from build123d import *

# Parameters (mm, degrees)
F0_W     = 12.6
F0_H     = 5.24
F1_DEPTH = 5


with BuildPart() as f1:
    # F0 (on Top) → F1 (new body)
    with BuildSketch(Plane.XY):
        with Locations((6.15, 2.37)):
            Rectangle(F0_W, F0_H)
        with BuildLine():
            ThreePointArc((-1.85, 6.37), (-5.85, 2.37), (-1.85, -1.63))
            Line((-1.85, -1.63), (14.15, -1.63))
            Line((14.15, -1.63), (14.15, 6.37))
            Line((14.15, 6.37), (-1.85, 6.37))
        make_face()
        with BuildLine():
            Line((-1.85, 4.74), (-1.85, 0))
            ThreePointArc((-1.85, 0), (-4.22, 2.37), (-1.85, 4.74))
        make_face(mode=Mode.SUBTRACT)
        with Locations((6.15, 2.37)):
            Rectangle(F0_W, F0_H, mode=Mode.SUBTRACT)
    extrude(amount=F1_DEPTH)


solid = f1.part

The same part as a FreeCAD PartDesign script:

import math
import FreeCAD as App
import Part
import Sketcher

doc = App.newDocument("Part")
body = doc.addObject("PartDesign::Body", "Body")

sketch1 = body.newObject("Sketcher::SketchObject", "Sketch")
sketch1.AttachmentSupport = (doc.getObject("XY_Plane"), [""])
sketch1.MapMode = "FlatFace"
sketch1.addGeometry([
    Part.ArcOfCircle(Part.Circle(App.Vector(-1.85, 2.37, 0), App.Vector(0, 0, 1), 4), math.radians(90), math.radians(270)),
    Part.LineSegment(App.Vector(-1.85, -1.63, 0), App.Vector(14.15, -1.63, 0)),
    Part.LineSegment(App.Vector(14.15, -1.63, 0), App.Vector(14.15, 6.37, 0)),
    Part.LineSegment(App.Vector(14.15, 6.37, 0), App.Vector(-1.85, 6.37, 0)),
    Part.ArcOfCircle(Part.Circle(App.Vector(-1.85, 2.37, 0), App.Vector(0, 0, 1), 2.37), math.radians(90), math.radians(270)),
    Part.LineSegment(App.Vector(-1.85, 4.74, 0), App.Vector(-1.85, 0, 0)),
    Part.LineSegment(App.Vector(12.45, -0.25, 0), App.Vector(-0.15, -0.25, 0)),
    Part.LineSegment(App.Vector(-0.15, -0.25, 0), App.Vector(-0.15, 4.99, 0)),
    Part.LineSegment(App.Vector(-0.15, 4.99, 0), App.Vector(12.45, 4.99, 0)),
    Part.LineSegment(App.Vector(12.45, 4.99, 0), App.Vector(12.45, -0.25, 0)),
], False)
sketch1.addConstraint([
    Sketcher.Constraint("Tangent", 0, 2, 1, 1),
    Sketcher.Constraint("Coincident", 1, 2, 2, 1),
    Sketcher.Constraint("Coincident", 2, 2, 3, 1),
    Sketcher.Constraint("Tangent", 3, 2, 0, 1),
    Sketcher.Constraint("Coincident", 4, 1, 5, 1),
    Sketcher.Constraint("Coincident", 5, 2, 4, 2),
    Sketcher.Constraint("Coincident", 6, 2, 7, 1),
    Sketcher.Constraint("Coincident", 7, 2, 8, 1),
    Sketcher.Constraint("Coincident", 8, 2, 9, 1),
    Sketcher.Constraint("Coincident", 9, 2, 6, 1),
    Sketcher.Constraint("Horizontal", 1),
    Sketcher.Constraint("Vertical", 2),
    Sketcher.Constraint("Horizontal", 3),
    Sketcher.Constraint("Vertical", 5),
    Sketcher.Constraint("Horizontal", 6),
    Sketcher.Constraint("Vertical", 7),
    Sketcher.Constraint("Horizontal", 8),
    Sketcher.Constraint("Vertical", 9),
    Sketcher.Constraint("Coincident", 4, 3, 0, 3),
    Sketcher.Constraint("PointOnObject", 5, 2, -1),
    Sketcher.Constraint("Vertical", 3, 2, 4, 1),
    Sketcher.Constraint("Radius", 0, 4.0),
    Sketcher.Constraint("DistanceX", 1, 1, 1, 2, 16.0),
    Sketcher.Constraint("Radius", 4, 2.37),
    Sketcher.Constraint("DistanceX", 6, 2, 6, 1, 12.6),
    Sketcher.Constraint("DistanceY", 7, 1, 7, 2, 5.24),
    Sketcher.Constraint("DistanceX", 5, 2, 6, 2, 1.7),
    Sketcher.Constraint("DistanceX", 0, 3, -1, 1, 1.85),
    Sketcher.Constraint("DistanceY", 6, 2, -1, 1, 0.25),
])
pad1 = body.newObject("PartDesign::Pad", "Pad")
pad1.Profile = sketch1
pad1.Length = 5

doc.recompute()
